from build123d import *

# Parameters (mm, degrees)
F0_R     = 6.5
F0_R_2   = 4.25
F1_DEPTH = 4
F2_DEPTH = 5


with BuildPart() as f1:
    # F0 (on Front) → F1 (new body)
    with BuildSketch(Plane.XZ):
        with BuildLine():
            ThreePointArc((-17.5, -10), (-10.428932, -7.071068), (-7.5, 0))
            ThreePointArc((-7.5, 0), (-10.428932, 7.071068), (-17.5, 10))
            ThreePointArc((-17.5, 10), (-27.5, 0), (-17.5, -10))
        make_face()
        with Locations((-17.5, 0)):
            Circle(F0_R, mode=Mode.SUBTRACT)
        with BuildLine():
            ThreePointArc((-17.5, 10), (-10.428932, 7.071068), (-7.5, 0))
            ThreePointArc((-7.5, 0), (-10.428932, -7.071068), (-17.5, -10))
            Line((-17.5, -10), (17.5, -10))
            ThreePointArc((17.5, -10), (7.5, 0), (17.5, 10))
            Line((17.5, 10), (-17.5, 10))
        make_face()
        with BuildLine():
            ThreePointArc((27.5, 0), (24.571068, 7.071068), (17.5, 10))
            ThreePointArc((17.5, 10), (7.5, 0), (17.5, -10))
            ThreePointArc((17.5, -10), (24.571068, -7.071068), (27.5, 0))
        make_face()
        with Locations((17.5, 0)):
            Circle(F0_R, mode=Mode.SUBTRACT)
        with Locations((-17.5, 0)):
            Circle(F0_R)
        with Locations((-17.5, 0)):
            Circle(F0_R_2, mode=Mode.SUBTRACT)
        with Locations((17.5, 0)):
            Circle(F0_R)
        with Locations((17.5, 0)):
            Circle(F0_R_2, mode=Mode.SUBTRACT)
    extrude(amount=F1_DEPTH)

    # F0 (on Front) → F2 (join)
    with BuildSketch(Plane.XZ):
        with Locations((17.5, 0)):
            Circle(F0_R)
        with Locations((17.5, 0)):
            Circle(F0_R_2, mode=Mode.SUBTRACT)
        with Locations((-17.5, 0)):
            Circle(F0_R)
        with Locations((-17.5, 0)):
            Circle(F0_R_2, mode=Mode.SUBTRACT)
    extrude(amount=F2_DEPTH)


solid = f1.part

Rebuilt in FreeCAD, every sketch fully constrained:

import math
import FreeCAD as App
import Part
import Sketcher
from FreeCAD import Vector

doc = App.newDocument("Part")
body = doc.addObject("PartDesign::Body", "Body")

# Sketch on XZ plane
sketch1 = body.newObject("Sketcher::SketchObject", "Sketch")
sketch1.AttachmentSupport = (doc.getObject("XZ_Plane"), [""])
sketch1.MapMode = "FlatFace"
sketch1.addGeometry([
    Part.ArcOfCircle(Part.Circle(Vector(-17.5, 0, 0), Vector(0, 0, 1), 10), math.radians(90), math.radians(270)),  # 0
    Part.LineSegment(Vector(-17.5, -10, 0), Vector(17.5, -10, 0)),  # 1
    Part.ArcOfCircle(Part.Circle(Vector(17.5, 0, 0), Vector(0, 0, 1), 10), math.radians(-90), math.radians(0)),  # 2
    Part.ArcOfCircle(Part.Circle(Vector(17.5, 0, 0), Vector(0, 0, 1), 10), math.radians(0), math.radians(90)),  # 3
    Part.LineSegment(Vector(17.5, 10, 0), Vector(-17.5, 10, 0)),  # 4
    Part.Circle(Vector(-17.5, 0, 0), Vector(0, 0, 1), 4.2),  # 5
    Part.Circle(Vector(17.5, 0, 0), Vector(0, 0, 1), 4.2),  # 6
], False)
sketch1.addConstraint([
    Sketcher.Constraint("Tangent", 0, 2, 1, 1),
    Sketcher.Constraint("Tangent", 1, 2, 2, 1),
    Sketcher.Constraint("Tangent", 2, 2, 3, 1),
    Sketcher.Constraint("Tangent", 3, 2, 4, 1),
    Sketcher.Constraint("Tangent", 4, 2, 0, 1),
    Sketcher.Constraint("Horizontal", 1),
    Sketcher.Constraint("Horizontal", 4),
    Sketcher.Constraint("Coincident", 5, 3, 0, 3),
    Sketcher.Constraint("Coincident", 6, 3, 2, 3),
    Sketcher.Constraint("Equal", 0, 2),
    Sketcher.Constraint("Equal", 5, 6),
    Sketcher.Constraint("Symmetric", 0, 3, 2, 3, -1, 1),
    Sketcher.Constraint("PointOnObject", 2, 2, -1),
    Sketcher.Constraint("Radius", 0, 10.0),
    Sketcher.Constraint("Diameter", 5, 8.5),
    Sketcher.Constraint("DistanceX", 1, 1, 1, 2, 35.0),
])
pad1 = body.newObject("PartDesign::Pad", "Pad")
pad1.Profile = sketch1
pad1.Length = 4

# Sketch on XZ plane
sketch2 = body.newObject("Sketcher::SketchObject", "Sketch001")
sketch2.AttachmentSupport = (doc.getObject("XZ_Plane"), [""])
sketch2.MapMode = "FlatFace"
sketch2.addGeometry([
    Part.Circle(Vector(17.5, 0, 0), Vector(0, 0, 1), 6.5),
    Part.Circle(Vector(17.5, 0, 0), Vector(0, 0, 1), 4.2),
    Part.Circle(Vector(-17.5, 0, 0), Vector(0, 0, 1), 6.5),
    Part.Circle(Vector(-17.5, 0, 0), Vector(0, 0, 1), 4.2),
], False)
sketch2.addConstraint([
    Sketcher.Constraint("Coincident", 1, 3, 0, 3),
    Sketcher.Constraint("Coincident", 3, 3, 2, 3),
    Sketcher.Constraint("Equal", 0, 2),
    Sketcher.Constraint("Equal", 1, 3),
    Sketcher.Constraint("Symmetric", 0, 3, 2, 3, -1, 1),
    Sketcher.Constraint("PointOnObject", 0, 3, -1),
    Sketcher.Constraint("Diameter", 0, 13.0),
    Sketcher.Constraint("Diameter", 1, 8.5),
    Sketcher.Constraint("DistanceX", 2, 3, 0, 3, 35.0),
])
pad2 = body.newObject("PartDesign::Pad", "Pad001")
pad2.Profile = sketch2
pad2.Length = 5

doc.recompute()
